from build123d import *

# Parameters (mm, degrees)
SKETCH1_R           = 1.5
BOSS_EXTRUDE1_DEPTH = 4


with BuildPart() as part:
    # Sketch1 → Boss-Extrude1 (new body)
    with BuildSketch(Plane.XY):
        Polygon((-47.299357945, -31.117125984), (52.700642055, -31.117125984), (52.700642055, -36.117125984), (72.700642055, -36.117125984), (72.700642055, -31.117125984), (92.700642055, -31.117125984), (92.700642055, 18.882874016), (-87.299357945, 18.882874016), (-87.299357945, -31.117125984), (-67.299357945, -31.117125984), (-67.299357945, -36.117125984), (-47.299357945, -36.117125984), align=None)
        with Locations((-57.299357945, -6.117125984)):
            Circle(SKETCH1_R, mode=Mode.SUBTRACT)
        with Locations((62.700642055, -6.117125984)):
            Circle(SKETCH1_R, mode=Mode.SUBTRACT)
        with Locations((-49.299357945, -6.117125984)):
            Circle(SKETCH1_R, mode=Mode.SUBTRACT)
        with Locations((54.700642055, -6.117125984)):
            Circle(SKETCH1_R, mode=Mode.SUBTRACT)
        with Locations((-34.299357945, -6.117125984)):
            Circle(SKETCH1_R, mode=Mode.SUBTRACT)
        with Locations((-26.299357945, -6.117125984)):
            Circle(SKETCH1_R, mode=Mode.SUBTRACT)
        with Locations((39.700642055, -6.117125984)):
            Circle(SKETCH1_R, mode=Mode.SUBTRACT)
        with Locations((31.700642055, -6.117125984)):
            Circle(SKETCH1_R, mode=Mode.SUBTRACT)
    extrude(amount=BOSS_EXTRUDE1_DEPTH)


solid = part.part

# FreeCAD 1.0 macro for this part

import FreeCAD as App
import Part
import Sketcher
Q = App.Units.Quantity

doc = App.newDocument("Part")
body = doc.addObject("PartDesign::Body", "Body")

# Sketch on XY plane
sketch1 = body.newObject("Sketcher::SketchObject", "Sketch")
sketch1.AttachmentSupport = (doc.getObject("XY_Plane"), [""])
sketch1.MapMode = "FlatFace"
sketch1.addGeometry([
    Part.LineSegment(App.Vector(-47.299358, -31.117126, 0), App.Vector(52.700642, -31.117126, 0)),  # 0
    Part.LineSegment(App.Vector(52.700642, -31.117126, 0), App.Vector(52.700642, -36.117126, 0)),  # 1
    Part.LineSegment(App.Vector(52.700642, -36.117126, 0), App.Vector(72.700642, -36.117126, 0)),  # 2
    Part.LineSegment(App.Vector(72.700642, -36.117126, 0), App.Vector(72.700642, -31.117126, 0)),  # 3
    Part.LineSegment(App.Vector(72.700642, -31.117126, 0), App.Vector(92.700642, -31.117126, 0)),  # 4
    Part.LineSegment(App.Vector(92.700642, -31.117126, 0), App.Vector(92.700642, 18.882874, 0)),  # 5
    Part.LineSegment(App.Vector(92.700642, 18.882874, 0), App.Vector(-87.299358, 18.882874, 0)),  # 6
    Part.LineSegment(App.Vector(-87.299358, 18.882874, 0), App.Vector(-87.299358, -31.117126, 0)),  # 7
    Part.LineSegment(App.Vector(-87.299358, -31.117126, 0), App.Vector(-67.299358, -31.117126, 0)),  # 8
    Part.LineSegment(App.Vector(-67.299358, -31.117126, 0), App.Vector(-67.299358, -36.117126, 0)),  # 9
    Part.LineSegment(App.Vector(-67.299358, -36.117126, 0), App.Vector(-47.299358, -36.117126, 0)),  # 10
    Part.LineSegment(App.Vector(-47.299358, -36.117126, 0), App.Vector(-47.299358, -31.117126, 0)),  # 11
    Part.Circle(App.Vector(-57.299358, -6.117126, 0), App.Vector(0, 0, 1), 1.5),  # 12
    Part.Circle(App.Vector(-49.299358, -6.117126, 0), App.Vector(0, 0, 1), 1.5),  # 13
    Part.Circle(App.Vector(-34.299358, -6.117126, 0), App.Vector(0, 0, 1), 1.5),  # 14
    Part.Circle(App.Vector(-26.299358, -6.117126, 0), App.Vector(0, 0, 1), 1.5),  # 15
    Part.Circle(App.Vector(31.700642, -6.117126, 0), App.Vector(0, 0, 1), 1.5),  # 16
    Part.Circle(App.Vector(39.700642, -6.117126, 0), App.Vector(0, 0, 1), 1.5),  # 17
    Part.Circle(App.Vector(54.700642, -6.117126, 0), App.Vector(0, 0, 1), 1.5),  # 18
    Part.Circle(App.Vector(62.700642, -6.117126, 0), App.Vector(0, 0, 1), 1.5),  # 19
], False)
sketch1.addConstraint([
    Sketcher.Constraint("Coincident", 0, 2, 1, 1),
    Sketcher.Constraint("Coincident", 1, 2, 2, 1),
    Sketcher.Constraint("Coincident", 2, 2, 3, 1),
    Sketcher.Constraint("Coincident", 3, 2, 4, 1),
    Sketcher.Constraint("Coincident", 4, 2, 5, 1),
    Sketcher.Constraint("Coincident", 5, 2, 6, 1),
    Sketcher.Constraint("Coincident", 6, 2, 7, 1),
    Sketcher.Constraint("Coincident", 7, 2, 8, 1),
    Sketcher.Constraint("Coincident", 8, 2, 9, 1),
    Sketcher.Constraint("Coincident", 9, 2, 10, 1),
    Sketcher.Constraint("Coincident", 10, 2, 11, 1),
    Sketcher.Constraint("Coincident", 11, 2, 0, 1),
    Sketcher.Constraint("Horizontal", 0),
    Sketcher.Constraint("Vertical", 1),
    Sketcher.Constraint("Horizontal", 2),
    Sketcher.Constraint("Vertical", 3),
    Sketcher.Constraint("Horizontal", 4),
    Sketcher.Constraint("Vertical", 5),
    Sketcher.Constraint("Horizontal", 6),
    Sketcher.Constraint("Vertical", 7),
    Sketcher.Constraint("Horizontal", 8),
    Sketcher.Constraint("Vertical", 9),
    Sketcher.Constraint("Horizontal", 10),
    Sketcher.Constraint("Vertical", 11),
    Sketcher.Constraint("Equal", 12, 13),
    Sketcher.Constraint("Equal", 13, 14),
    Sketcher.Constraint("Equal", 14, 15),
    Sketcher.Constraint("Equal", 15, 16),
    Sketcher.Constraint("Equal", 16, 17),
    Sketcher.Constraint("Equal", 17, 18),
    Sketcher.Constraint("Equal", 18, 19),
    Sketcher.Constraint("Horizontal", 12, 3, 13, 3),
    Sketcher.Constraint("Horizontal", 13, 3, 14, 3),
    Sketcher.Constraint("Horizontal", 14, 3, 15, 3),
    Sketcher.Constraint("Horizontal", 15, 3, 16, 3),
    Sketcher.Constraint("Horizontal", 16, 3, 17, 3),
    Sketcher.Constraint("Horizontal", 17, 3, 18, 3),
    Sketcher.Constraint("Horizontal", 18, 3, 19, 3),
    Sketcher.Constraint("Horizontal", 0, 2, 3, 2),
    Sketcher.Constraint("Horizontal", 4, 2, 7, 2),
    Sketcher.Constraint("Horizontal", 2, 2, 9, 2),
    Sketcher.Constraint("Equal", 2, 4),
    Sketcher.Constraint("Equal", 4, 8),
    Sketcher.Constraint("Equal", 8, 10),
    Sketcher.Constraint("Diameter", 12, Q("3 mm")),
    Sketcher.Constraint("DistanceX", 0, 1, 0, 2, Q("100 mm")),
    Sketcher.Constraint("DistanceX", 2, 1, 2, 2, Q("20 mm")),
    Sketcher.Constraint("DistanceY", 1, 2, 1, 1, Q("5 mm")),
    Sketcher.Constraint("DistanceY", 5, 1, 5, 2, Q("50 mm")),
    Sketcher.Constraint("DistanceX", 12, 3, 13, 3, Q("8 mm")),
    Sketcher.Constraint("DistanceX", 13, 3, 14, 3, Q("15 mm")),
    Sketcher.Constraint("DistanceX", 14, 3, 15, 3, Q("8 mm")),
    Sketcher.Constraint("DistanceX", 15, 3, 16, 3, Q("58 mm")),
    Sketcher.Constraint("DistanceX", 16, 3, 17, 3, Q("8 mm")),
    Sketcher.Constraint("DistanceX", 17, 3, 18, 3, Q("15 mm")),
    Sketcher.Constraint("DistanceX", 18, 3, 19, 3, Q("8 mm")),
    Sketcher.Constraint("DistanceX", 0, 2, 18, 3, Q("2 mm")),
    Sketcher.Constraint("DistanceY", 0, 2, 18, 3, Q("25 mm")),
    Sketcher.Constraint("DistanceX", 12, 3, -1, 1, Q("57.299358 mm")),
    Sketcher.Constraint("DistanceY", 12, 3, -1, 1, Q("6.117126 mm")),
])
pad1 = body.newObject("PartDesign::Pad", "Pad")
pad1.Profile = sketch1
pad1.Length = 4

doc.recompute()
